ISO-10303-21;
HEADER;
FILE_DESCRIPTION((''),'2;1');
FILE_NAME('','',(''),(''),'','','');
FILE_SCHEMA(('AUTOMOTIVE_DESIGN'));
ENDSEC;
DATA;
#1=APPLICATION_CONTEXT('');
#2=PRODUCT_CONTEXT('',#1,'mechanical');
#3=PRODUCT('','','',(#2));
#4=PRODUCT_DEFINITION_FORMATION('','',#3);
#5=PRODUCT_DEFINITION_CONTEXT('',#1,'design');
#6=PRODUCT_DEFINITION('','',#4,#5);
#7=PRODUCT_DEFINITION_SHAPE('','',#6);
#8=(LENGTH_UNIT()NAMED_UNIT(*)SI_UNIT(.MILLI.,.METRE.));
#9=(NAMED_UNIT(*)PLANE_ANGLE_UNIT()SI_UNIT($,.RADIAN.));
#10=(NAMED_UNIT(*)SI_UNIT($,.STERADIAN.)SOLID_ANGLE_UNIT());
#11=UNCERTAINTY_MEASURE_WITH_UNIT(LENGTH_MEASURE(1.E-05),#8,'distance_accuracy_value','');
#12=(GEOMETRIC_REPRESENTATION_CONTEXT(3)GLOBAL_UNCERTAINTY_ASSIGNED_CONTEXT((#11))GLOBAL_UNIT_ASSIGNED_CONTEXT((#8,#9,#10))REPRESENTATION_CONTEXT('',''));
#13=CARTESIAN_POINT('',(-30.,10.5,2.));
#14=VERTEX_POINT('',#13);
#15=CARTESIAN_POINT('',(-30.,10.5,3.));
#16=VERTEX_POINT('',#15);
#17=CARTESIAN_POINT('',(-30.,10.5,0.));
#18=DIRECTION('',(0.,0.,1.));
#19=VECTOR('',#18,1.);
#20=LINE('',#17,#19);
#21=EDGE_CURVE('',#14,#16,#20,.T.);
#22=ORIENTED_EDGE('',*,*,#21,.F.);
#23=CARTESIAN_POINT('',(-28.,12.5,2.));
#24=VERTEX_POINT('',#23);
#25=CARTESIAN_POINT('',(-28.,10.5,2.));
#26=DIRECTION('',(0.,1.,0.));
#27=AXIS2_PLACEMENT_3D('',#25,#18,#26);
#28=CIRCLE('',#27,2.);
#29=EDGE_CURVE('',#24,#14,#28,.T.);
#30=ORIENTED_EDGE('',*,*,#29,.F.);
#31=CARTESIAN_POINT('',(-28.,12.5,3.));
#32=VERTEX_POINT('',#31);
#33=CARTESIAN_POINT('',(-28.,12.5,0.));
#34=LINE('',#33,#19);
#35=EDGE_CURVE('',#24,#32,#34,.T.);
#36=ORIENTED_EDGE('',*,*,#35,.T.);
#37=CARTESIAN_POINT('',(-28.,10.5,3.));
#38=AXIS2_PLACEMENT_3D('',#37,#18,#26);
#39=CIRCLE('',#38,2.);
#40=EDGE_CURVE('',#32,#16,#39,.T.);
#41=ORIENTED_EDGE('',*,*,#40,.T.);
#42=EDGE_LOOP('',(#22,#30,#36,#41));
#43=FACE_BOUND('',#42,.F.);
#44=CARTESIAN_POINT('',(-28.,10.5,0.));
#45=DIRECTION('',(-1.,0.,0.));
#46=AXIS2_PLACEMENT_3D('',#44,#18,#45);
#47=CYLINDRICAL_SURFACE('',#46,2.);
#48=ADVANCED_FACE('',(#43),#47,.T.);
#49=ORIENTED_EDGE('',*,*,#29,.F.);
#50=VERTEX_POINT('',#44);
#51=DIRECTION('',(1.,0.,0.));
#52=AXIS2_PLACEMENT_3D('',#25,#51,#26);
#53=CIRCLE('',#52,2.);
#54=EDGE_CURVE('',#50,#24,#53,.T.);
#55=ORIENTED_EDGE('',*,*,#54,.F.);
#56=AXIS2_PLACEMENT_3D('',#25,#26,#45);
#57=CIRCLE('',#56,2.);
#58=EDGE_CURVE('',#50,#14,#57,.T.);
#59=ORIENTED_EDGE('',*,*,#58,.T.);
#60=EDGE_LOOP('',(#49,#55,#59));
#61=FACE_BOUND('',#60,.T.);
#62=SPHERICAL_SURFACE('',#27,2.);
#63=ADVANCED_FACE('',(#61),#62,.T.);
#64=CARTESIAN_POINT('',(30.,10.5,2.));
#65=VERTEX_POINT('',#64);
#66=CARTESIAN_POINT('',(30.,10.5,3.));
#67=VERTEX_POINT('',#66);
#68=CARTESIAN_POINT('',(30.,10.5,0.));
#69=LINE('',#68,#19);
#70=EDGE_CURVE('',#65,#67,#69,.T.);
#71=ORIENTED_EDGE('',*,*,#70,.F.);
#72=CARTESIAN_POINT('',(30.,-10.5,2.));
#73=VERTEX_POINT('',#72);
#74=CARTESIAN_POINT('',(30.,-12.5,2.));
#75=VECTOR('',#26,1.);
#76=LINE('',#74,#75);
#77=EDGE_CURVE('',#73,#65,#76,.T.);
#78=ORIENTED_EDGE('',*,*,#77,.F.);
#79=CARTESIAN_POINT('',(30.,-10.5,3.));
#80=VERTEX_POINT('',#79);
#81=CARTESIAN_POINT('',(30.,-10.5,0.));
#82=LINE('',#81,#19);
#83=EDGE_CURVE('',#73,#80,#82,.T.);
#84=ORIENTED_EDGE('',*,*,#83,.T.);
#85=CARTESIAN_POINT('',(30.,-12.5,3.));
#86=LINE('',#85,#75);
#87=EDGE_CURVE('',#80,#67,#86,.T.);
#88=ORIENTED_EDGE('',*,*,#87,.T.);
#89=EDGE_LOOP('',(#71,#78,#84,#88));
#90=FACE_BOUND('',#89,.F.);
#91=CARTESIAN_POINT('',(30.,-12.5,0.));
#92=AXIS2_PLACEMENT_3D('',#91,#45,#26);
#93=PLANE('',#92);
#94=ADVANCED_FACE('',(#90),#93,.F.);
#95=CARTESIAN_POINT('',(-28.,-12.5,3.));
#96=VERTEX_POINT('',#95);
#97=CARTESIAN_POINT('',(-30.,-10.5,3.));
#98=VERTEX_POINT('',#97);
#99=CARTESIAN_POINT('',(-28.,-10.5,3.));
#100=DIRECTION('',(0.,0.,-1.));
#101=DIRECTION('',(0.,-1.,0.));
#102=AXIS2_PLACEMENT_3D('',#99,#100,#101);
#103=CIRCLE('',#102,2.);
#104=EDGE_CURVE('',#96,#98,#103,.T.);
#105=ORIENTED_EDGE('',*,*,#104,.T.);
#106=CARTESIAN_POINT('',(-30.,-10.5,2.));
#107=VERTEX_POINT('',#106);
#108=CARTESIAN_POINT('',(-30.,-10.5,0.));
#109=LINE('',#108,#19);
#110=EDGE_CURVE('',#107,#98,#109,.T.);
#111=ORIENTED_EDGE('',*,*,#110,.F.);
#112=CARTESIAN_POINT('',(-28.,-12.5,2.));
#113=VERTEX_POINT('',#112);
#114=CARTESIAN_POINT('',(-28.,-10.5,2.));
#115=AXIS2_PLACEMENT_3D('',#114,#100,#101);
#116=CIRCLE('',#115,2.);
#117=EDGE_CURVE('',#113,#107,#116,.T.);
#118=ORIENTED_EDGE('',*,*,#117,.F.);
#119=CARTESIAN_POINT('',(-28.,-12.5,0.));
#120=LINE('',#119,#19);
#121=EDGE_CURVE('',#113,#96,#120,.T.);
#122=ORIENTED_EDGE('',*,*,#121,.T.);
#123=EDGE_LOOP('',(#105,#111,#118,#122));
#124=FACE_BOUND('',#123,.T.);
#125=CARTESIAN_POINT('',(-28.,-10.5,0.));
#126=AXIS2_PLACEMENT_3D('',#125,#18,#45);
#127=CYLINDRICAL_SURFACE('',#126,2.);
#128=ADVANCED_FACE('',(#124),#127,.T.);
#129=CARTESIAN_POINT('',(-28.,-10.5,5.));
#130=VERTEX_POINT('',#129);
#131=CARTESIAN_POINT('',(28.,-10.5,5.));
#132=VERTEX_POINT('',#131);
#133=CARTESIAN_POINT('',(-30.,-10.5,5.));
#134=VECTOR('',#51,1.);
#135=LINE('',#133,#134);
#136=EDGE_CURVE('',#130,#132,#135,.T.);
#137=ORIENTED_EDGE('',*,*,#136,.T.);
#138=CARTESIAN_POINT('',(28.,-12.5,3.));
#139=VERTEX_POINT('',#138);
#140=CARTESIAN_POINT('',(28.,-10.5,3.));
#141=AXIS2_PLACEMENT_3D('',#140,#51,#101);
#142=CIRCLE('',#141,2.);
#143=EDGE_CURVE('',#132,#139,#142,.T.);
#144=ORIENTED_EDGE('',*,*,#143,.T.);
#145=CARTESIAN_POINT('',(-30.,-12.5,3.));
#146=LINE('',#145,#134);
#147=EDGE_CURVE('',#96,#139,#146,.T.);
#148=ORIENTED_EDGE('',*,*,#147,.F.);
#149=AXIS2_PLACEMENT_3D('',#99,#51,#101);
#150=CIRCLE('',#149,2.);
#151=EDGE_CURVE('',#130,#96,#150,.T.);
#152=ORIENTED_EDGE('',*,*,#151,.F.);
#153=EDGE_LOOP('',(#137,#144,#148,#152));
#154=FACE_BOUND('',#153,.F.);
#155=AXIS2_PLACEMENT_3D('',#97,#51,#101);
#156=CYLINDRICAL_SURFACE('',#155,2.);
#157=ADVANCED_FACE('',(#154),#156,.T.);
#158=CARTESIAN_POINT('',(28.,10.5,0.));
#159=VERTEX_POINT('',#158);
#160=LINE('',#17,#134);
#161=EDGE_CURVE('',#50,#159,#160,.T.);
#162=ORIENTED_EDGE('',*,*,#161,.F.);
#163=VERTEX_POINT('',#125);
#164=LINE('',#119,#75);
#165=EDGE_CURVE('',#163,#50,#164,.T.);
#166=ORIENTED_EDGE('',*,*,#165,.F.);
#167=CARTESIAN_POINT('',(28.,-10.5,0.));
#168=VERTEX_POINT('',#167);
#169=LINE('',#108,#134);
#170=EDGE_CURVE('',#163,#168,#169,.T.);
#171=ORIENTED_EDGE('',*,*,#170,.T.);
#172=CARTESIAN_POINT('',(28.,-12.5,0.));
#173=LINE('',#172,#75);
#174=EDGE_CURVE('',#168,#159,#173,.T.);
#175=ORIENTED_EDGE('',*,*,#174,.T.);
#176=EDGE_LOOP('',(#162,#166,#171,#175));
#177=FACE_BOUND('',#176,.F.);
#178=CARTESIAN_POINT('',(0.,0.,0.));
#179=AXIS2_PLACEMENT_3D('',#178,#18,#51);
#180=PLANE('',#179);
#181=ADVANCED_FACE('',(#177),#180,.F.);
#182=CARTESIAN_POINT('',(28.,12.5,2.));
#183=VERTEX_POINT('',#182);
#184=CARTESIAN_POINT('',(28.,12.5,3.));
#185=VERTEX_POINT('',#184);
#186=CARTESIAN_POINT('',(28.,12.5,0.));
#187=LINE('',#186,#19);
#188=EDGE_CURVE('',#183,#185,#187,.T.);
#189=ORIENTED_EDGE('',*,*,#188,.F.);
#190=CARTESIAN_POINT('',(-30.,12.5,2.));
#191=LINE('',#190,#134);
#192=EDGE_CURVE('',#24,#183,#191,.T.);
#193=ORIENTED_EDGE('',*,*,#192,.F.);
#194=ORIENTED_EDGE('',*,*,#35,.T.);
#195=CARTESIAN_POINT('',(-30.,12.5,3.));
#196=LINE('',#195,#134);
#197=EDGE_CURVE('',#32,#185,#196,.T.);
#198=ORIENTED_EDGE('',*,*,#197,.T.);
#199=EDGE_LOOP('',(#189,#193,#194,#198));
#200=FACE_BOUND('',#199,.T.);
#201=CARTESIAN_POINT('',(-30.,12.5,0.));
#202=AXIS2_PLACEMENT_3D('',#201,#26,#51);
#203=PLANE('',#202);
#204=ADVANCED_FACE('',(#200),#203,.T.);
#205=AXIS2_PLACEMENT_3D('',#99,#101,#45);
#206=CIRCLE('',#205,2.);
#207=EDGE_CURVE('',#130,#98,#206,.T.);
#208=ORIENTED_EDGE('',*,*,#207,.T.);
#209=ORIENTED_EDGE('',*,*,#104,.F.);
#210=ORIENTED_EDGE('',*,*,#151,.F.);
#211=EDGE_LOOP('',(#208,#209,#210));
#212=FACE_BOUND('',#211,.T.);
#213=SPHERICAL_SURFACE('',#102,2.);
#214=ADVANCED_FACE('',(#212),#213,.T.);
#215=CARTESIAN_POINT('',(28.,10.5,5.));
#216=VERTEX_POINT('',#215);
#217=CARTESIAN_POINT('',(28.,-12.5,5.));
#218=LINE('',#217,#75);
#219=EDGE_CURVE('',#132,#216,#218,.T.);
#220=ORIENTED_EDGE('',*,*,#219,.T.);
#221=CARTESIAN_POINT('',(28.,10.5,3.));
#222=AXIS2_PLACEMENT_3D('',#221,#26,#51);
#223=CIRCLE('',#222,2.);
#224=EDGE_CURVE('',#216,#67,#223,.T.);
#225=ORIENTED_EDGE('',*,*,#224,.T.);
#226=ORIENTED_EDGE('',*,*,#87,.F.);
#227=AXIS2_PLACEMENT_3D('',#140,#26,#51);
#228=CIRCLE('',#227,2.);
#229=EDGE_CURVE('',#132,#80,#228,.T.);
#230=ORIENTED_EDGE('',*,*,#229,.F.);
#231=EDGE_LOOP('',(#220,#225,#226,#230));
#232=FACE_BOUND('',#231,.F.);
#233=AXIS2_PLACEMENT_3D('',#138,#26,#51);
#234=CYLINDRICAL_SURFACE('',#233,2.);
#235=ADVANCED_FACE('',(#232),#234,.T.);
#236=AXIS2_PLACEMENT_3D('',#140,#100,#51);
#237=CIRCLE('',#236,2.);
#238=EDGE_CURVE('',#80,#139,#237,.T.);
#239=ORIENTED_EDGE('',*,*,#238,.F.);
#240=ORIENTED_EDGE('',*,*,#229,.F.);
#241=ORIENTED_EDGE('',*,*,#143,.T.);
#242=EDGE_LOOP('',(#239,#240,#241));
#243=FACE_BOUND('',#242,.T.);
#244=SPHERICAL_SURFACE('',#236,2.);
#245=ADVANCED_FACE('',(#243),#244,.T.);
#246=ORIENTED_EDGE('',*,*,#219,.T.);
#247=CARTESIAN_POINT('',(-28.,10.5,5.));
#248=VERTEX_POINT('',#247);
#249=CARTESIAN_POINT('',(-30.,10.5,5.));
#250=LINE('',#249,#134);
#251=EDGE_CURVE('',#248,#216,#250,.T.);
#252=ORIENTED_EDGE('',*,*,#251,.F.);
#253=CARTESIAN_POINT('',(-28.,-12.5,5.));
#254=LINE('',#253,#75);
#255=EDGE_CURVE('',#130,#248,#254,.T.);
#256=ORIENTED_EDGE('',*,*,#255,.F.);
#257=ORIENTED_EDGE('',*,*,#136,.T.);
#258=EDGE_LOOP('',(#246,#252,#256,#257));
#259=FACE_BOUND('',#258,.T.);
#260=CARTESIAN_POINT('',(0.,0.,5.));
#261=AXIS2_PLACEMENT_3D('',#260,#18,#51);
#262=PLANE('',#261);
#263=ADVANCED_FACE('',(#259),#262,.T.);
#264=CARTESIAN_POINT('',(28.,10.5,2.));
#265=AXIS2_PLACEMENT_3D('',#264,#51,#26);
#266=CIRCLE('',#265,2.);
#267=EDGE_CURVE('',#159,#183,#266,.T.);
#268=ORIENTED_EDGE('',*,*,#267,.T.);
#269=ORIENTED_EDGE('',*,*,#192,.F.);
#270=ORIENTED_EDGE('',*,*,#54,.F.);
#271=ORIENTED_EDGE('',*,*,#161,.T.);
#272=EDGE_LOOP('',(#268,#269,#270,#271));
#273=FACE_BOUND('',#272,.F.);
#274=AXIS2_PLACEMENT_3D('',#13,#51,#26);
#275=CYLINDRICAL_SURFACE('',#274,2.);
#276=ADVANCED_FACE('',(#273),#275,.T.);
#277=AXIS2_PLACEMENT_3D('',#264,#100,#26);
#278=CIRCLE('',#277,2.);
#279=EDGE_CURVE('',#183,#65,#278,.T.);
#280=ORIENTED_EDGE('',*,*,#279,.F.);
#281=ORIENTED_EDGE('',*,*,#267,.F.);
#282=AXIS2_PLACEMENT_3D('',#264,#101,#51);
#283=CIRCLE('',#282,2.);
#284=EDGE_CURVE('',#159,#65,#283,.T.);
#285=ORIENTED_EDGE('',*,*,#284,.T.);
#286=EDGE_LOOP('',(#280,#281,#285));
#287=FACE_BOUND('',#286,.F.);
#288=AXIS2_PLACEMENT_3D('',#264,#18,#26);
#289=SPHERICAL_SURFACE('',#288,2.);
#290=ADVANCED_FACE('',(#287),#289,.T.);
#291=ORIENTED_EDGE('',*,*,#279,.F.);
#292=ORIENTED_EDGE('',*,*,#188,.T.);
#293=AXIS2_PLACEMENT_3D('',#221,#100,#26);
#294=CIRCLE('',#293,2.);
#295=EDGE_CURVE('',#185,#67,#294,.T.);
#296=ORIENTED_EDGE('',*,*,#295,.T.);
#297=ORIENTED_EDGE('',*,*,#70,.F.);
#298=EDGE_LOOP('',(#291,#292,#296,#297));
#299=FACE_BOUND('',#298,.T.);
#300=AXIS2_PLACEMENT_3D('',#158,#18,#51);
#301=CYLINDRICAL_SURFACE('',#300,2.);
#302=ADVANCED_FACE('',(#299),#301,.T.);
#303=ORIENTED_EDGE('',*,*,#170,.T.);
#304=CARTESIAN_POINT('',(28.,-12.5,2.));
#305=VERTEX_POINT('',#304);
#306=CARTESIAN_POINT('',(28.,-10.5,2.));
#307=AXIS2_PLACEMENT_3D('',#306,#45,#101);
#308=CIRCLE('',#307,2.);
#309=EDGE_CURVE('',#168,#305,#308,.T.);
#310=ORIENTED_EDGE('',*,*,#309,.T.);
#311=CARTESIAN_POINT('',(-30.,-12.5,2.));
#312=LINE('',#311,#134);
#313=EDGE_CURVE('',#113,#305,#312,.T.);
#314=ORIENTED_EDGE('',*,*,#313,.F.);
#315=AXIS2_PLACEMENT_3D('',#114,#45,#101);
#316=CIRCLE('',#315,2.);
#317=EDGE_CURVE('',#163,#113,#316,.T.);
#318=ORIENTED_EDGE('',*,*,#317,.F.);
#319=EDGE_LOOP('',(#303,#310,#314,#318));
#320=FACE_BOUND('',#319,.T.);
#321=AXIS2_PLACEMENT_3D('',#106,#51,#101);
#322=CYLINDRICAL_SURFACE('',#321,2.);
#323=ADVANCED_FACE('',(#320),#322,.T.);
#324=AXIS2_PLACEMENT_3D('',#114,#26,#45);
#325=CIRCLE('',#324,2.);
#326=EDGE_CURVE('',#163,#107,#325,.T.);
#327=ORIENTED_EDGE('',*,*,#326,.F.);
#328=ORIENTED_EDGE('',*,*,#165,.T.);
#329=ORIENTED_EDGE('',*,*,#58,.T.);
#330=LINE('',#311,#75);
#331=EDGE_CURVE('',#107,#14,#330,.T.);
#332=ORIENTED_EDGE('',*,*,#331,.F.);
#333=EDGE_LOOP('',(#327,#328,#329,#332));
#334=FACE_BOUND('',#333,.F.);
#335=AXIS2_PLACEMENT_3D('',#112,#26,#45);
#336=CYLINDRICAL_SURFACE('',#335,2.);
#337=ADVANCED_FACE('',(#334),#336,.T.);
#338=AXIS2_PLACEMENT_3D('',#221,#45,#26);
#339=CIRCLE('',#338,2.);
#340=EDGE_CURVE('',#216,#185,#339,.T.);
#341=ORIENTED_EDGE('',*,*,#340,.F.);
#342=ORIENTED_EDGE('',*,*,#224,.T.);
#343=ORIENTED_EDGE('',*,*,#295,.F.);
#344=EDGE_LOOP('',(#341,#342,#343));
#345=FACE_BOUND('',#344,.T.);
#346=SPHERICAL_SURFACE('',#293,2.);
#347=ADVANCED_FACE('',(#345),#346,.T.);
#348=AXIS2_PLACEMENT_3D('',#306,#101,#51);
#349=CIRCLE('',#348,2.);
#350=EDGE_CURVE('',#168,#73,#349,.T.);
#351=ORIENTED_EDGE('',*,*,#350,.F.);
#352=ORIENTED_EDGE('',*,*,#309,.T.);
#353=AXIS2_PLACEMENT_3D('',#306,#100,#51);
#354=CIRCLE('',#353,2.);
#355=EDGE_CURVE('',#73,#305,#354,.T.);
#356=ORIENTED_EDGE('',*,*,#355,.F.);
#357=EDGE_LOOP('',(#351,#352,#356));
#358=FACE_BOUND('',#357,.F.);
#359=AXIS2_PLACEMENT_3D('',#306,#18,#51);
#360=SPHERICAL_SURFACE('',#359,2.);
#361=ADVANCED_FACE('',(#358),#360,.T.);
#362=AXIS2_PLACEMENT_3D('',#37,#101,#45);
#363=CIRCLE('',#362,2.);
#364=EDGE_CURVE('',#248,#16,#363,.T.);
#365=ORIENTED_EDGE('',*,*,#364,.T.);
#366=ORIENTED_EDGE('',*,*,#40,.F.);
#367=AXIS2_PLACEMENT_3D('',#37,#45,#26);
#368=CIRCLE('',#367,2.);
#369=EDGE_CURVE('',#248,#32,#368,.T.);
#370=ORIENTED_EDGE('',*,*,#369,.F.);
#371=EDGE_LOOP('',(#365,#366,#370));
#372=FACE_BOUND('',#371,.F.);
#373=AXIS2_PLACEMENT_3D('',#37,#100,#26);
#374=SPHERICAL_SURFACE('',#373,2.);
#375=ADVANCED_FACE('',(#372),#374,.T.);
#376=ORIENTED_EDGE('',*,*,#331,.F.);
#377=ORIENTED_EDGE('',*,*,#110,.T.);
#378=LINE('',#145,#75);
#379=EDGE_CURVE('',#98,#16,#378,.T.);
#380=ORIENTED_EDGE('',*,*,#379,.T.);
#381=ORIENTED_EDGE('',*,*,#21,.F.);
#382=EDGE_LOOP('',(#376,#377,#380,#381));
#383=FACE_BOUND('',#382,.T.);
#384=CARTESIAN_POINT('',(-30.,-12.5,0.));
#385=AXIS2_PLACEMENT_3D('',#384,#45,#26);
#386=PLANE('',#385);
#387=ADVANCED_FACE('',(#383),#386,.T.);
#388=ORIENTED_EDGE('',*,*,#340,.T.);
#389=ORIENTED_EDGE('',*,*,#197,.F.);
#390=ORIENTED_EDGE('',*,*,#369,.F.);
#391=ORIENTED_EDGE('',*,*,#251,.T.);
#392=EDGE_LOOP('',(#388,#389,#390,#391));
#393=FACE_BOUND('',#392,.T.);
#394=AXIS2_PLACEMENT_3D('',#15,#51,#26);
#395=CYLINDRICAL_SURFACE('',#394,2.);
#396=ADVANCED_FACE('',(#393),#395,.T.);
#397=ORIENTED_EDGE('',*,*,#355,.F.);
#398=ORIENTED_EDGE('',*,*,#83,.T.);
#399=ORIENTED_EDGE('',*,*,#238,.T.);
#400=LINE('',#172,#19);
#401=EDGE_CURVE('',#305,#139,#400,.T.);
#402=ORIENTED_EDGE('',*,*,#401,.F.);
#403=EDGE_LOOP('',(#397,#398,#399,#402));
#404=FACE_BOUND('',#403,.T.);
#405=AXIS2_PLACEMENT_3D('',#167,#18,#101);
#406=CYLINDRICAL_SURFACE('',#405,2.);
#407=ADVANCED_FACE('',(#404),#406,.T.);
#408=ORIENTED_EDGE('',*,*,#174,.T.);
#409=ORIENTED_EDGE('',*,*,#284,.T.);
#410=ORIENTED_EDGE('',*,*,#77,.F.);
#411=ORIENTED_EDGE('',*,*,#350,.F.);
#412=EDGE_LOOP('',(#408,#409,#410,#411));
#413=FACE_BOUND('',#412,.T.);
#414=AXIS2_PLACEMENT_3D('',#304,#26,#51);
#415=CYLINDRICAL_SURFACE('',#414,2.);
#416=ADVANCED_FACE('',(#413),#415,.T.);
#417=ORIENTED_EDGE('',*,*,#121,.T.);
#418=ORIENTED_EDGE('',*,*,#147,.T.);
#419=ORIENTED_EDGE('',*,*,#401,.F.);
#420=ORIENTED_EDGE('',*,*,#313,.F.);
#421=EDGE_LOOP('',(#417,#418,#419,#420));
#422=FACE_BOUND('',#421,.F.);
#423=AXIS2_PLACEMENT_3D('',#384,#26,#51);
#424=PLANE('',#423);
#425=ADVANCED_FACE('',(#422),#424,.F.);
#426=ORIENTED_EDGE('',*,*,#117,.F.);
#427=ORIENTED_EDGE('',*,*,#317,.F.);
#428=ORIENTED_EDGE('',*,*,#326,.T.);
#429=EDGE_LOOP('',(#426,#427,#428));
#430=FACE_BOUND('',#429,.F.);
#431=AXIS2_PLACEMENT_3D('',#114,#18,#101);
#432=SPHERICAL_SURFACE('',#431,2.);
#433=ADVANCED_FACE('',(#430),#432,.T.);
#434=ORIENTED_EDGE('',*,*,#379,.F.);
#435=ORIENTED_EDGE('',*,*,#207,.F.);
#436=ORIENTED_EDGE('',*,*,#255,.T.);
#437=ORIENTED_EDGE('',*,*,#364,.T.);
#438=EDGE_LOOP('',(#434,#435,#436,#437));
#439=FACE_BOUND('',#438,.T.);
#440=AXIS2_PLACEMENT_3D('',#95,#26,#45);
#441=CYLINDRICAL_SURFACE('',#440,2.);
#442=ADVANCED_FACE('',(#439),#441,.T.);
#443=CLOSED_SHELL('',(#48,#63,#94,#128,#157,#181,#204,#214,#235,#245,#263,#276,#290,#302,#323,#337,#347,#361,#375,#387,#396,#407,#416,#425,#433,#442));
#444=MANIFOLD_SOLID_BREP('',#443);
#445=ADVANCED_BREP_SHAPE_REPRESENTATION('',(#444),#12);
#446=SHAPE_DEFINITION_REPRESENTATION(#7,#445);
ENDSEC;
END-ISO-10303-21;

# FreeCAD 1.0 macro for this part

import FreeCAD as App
import Part
import Sketcher
Q = App.Units.Quantity


def add_polygon(sketch, points):
    """Adds a closed chain of lines whose ends are joined by coincident constraints."""
    first, n = sketch.GeometryCount, len(points)
    for a, b in zip(points, points[1:] + points[:1]):
        sketch.addGeometry(Part.LineSegment(App.Vector(*a, 0), App.Vector(*b, 0)), False)
    for i in range(n):
        sketch.addConstraint(Sketcher.Constraint("Coincident", first + i, 2, first + (i + 1) % n, 1))

doc = App.newDocument("Part")
params = doc.addObject("Spreadsheet::Sheet", "Params")
for row, (alias, value) in enumerate([
    ("sketch1_width", "60 mm"),
    ("sketch1_height", "25 mm"),
    ("pad1_length", "5 mm"),
    ("fillet_radius", "2 mm"),
], start=1):
    params.set(f"A{row}", alias)
    params.set(f"B{row}", "=" + value)
    params.setAlias(f"B{row}", alias)

body = doc.addObject("PartDesign::Body", "Body")

# Sketch on XY plane
sketch1 = doc.addObject("Sketcher::SketchObject", "Sketch")
body.addObject(sketch1)
sketch1.AttachmentSupport = (doc.XY_Plane, [""])
sketch1.MapMode = "FlatFace"
add_polygon(sketch1, [(-30, 12), (-30, -12), (30, -12), (30, 12)])  # lines 0-3
sketch1.addConstraint([
    Sketcher.Constraint("Vertical", 0),
    Sketcher.Constraint("Horizontal", 1),
    Sketcher.Constraint("Vertical", 2),
    Sketcher.Constraint("Horizontal", 3),
    Sketcher.Constraint("Symmetric", 0, 2, 2, 2, -1, 1),
    Sketcher.Constraint("DistanceX", 1, 1, 1, 2, Q("60 mm")),
    Sketcher.Constraint("DistanceY", 0, 2, 0, 1, Q("25 mm")),
])
sketch1.setExpression("Constraints[9]", "Params.sketch1_width")
sketch1.setExpression("Constraints[10]", "Params.sketch1_height")
pad1 = doc.addObject("PartDesign::Pad", "Pad")
body.addObject(pad1)
pad1.Profile = sketch1
pad1.setExpression("Length", "Params.pad1_length")
doc.recompute()

fillet = doc.addObject("PartDesign::Fillet", "Fillet")
body.addObject(fillet)
fillet.Base = (pad1, ["Edge1"])
fillet.UseAllEdges = True
fillet.setExpression("Radius", "Params.fillet_radius")

doc.recompute()
